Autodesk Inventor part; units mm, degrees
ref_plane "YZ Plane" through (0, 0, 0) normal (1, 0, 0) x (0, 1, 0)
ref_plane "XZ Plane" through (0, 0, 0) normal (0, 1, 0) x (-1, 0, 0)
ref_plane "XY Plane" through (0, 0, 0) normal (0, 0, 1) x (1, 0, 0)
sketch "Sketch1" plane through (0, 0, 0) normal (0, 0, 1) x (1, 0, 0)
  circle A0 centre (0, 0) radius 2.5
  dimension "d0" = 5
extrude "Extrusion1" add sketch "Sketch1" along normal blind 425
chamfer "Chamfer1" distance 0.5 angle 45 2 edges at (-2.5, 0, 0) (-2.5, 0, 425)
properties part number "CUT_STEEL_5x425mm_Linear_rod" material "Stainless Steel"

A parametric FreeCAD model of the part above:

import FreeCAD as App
import Part
import Sketcher

V = App.Vector
Q = App.Units.Quantity


def edges_at(feature, points):
    """Names of the edges that pass closest to the given points."""
    edges = feature.Shape.Edges
    near = lambda p: min(range(len(edges)), key=lambda i: edges[i].distToShape(Part.Vertex(*p))[0])
    return sorted({f"Edge{near(p) + 1}" for p in points})

doc = App.newDocument("Part")
body = doc.addObject("PartDesign::Body", "Body")

# Sketch on XY plane
sketch1 = doc.addObject("Sketcher::SketchObject", "Sketch")
body.addObject(sketch1)
sketch1.AttachmentSupport = (doc.XY_Plane, [""])
sketch1.MapMode = "FlatFace"
sketch1.addGeometry(Part.Circle(V(0, 0, 0), V(0, 0, 1), 2.5), False)
sketch1.addConstraint([
    Sketcher.Constraint("Coincident", 0, 3, -1, 1),
    Sketcher.Constraint("Diameter", 0, Q("5 mm")),
])
pad1 = doc.addObject("PartDesign::Pad", "Pad")
body.addObject(pad1)
pad1.Profile = sketch1
pad1.Length = 425
doc.recompute()

chamfer = doc.addObject("PartDesign::Chamfer", "Chamfer")
body.addObject(chamfer)
chamfer.Base = (pad1, edges_at(pad1, [(-2.5, 0, 0), (-2.5, 0, 425)]))
chamfer.Size = 0.5

doc.recompute()
